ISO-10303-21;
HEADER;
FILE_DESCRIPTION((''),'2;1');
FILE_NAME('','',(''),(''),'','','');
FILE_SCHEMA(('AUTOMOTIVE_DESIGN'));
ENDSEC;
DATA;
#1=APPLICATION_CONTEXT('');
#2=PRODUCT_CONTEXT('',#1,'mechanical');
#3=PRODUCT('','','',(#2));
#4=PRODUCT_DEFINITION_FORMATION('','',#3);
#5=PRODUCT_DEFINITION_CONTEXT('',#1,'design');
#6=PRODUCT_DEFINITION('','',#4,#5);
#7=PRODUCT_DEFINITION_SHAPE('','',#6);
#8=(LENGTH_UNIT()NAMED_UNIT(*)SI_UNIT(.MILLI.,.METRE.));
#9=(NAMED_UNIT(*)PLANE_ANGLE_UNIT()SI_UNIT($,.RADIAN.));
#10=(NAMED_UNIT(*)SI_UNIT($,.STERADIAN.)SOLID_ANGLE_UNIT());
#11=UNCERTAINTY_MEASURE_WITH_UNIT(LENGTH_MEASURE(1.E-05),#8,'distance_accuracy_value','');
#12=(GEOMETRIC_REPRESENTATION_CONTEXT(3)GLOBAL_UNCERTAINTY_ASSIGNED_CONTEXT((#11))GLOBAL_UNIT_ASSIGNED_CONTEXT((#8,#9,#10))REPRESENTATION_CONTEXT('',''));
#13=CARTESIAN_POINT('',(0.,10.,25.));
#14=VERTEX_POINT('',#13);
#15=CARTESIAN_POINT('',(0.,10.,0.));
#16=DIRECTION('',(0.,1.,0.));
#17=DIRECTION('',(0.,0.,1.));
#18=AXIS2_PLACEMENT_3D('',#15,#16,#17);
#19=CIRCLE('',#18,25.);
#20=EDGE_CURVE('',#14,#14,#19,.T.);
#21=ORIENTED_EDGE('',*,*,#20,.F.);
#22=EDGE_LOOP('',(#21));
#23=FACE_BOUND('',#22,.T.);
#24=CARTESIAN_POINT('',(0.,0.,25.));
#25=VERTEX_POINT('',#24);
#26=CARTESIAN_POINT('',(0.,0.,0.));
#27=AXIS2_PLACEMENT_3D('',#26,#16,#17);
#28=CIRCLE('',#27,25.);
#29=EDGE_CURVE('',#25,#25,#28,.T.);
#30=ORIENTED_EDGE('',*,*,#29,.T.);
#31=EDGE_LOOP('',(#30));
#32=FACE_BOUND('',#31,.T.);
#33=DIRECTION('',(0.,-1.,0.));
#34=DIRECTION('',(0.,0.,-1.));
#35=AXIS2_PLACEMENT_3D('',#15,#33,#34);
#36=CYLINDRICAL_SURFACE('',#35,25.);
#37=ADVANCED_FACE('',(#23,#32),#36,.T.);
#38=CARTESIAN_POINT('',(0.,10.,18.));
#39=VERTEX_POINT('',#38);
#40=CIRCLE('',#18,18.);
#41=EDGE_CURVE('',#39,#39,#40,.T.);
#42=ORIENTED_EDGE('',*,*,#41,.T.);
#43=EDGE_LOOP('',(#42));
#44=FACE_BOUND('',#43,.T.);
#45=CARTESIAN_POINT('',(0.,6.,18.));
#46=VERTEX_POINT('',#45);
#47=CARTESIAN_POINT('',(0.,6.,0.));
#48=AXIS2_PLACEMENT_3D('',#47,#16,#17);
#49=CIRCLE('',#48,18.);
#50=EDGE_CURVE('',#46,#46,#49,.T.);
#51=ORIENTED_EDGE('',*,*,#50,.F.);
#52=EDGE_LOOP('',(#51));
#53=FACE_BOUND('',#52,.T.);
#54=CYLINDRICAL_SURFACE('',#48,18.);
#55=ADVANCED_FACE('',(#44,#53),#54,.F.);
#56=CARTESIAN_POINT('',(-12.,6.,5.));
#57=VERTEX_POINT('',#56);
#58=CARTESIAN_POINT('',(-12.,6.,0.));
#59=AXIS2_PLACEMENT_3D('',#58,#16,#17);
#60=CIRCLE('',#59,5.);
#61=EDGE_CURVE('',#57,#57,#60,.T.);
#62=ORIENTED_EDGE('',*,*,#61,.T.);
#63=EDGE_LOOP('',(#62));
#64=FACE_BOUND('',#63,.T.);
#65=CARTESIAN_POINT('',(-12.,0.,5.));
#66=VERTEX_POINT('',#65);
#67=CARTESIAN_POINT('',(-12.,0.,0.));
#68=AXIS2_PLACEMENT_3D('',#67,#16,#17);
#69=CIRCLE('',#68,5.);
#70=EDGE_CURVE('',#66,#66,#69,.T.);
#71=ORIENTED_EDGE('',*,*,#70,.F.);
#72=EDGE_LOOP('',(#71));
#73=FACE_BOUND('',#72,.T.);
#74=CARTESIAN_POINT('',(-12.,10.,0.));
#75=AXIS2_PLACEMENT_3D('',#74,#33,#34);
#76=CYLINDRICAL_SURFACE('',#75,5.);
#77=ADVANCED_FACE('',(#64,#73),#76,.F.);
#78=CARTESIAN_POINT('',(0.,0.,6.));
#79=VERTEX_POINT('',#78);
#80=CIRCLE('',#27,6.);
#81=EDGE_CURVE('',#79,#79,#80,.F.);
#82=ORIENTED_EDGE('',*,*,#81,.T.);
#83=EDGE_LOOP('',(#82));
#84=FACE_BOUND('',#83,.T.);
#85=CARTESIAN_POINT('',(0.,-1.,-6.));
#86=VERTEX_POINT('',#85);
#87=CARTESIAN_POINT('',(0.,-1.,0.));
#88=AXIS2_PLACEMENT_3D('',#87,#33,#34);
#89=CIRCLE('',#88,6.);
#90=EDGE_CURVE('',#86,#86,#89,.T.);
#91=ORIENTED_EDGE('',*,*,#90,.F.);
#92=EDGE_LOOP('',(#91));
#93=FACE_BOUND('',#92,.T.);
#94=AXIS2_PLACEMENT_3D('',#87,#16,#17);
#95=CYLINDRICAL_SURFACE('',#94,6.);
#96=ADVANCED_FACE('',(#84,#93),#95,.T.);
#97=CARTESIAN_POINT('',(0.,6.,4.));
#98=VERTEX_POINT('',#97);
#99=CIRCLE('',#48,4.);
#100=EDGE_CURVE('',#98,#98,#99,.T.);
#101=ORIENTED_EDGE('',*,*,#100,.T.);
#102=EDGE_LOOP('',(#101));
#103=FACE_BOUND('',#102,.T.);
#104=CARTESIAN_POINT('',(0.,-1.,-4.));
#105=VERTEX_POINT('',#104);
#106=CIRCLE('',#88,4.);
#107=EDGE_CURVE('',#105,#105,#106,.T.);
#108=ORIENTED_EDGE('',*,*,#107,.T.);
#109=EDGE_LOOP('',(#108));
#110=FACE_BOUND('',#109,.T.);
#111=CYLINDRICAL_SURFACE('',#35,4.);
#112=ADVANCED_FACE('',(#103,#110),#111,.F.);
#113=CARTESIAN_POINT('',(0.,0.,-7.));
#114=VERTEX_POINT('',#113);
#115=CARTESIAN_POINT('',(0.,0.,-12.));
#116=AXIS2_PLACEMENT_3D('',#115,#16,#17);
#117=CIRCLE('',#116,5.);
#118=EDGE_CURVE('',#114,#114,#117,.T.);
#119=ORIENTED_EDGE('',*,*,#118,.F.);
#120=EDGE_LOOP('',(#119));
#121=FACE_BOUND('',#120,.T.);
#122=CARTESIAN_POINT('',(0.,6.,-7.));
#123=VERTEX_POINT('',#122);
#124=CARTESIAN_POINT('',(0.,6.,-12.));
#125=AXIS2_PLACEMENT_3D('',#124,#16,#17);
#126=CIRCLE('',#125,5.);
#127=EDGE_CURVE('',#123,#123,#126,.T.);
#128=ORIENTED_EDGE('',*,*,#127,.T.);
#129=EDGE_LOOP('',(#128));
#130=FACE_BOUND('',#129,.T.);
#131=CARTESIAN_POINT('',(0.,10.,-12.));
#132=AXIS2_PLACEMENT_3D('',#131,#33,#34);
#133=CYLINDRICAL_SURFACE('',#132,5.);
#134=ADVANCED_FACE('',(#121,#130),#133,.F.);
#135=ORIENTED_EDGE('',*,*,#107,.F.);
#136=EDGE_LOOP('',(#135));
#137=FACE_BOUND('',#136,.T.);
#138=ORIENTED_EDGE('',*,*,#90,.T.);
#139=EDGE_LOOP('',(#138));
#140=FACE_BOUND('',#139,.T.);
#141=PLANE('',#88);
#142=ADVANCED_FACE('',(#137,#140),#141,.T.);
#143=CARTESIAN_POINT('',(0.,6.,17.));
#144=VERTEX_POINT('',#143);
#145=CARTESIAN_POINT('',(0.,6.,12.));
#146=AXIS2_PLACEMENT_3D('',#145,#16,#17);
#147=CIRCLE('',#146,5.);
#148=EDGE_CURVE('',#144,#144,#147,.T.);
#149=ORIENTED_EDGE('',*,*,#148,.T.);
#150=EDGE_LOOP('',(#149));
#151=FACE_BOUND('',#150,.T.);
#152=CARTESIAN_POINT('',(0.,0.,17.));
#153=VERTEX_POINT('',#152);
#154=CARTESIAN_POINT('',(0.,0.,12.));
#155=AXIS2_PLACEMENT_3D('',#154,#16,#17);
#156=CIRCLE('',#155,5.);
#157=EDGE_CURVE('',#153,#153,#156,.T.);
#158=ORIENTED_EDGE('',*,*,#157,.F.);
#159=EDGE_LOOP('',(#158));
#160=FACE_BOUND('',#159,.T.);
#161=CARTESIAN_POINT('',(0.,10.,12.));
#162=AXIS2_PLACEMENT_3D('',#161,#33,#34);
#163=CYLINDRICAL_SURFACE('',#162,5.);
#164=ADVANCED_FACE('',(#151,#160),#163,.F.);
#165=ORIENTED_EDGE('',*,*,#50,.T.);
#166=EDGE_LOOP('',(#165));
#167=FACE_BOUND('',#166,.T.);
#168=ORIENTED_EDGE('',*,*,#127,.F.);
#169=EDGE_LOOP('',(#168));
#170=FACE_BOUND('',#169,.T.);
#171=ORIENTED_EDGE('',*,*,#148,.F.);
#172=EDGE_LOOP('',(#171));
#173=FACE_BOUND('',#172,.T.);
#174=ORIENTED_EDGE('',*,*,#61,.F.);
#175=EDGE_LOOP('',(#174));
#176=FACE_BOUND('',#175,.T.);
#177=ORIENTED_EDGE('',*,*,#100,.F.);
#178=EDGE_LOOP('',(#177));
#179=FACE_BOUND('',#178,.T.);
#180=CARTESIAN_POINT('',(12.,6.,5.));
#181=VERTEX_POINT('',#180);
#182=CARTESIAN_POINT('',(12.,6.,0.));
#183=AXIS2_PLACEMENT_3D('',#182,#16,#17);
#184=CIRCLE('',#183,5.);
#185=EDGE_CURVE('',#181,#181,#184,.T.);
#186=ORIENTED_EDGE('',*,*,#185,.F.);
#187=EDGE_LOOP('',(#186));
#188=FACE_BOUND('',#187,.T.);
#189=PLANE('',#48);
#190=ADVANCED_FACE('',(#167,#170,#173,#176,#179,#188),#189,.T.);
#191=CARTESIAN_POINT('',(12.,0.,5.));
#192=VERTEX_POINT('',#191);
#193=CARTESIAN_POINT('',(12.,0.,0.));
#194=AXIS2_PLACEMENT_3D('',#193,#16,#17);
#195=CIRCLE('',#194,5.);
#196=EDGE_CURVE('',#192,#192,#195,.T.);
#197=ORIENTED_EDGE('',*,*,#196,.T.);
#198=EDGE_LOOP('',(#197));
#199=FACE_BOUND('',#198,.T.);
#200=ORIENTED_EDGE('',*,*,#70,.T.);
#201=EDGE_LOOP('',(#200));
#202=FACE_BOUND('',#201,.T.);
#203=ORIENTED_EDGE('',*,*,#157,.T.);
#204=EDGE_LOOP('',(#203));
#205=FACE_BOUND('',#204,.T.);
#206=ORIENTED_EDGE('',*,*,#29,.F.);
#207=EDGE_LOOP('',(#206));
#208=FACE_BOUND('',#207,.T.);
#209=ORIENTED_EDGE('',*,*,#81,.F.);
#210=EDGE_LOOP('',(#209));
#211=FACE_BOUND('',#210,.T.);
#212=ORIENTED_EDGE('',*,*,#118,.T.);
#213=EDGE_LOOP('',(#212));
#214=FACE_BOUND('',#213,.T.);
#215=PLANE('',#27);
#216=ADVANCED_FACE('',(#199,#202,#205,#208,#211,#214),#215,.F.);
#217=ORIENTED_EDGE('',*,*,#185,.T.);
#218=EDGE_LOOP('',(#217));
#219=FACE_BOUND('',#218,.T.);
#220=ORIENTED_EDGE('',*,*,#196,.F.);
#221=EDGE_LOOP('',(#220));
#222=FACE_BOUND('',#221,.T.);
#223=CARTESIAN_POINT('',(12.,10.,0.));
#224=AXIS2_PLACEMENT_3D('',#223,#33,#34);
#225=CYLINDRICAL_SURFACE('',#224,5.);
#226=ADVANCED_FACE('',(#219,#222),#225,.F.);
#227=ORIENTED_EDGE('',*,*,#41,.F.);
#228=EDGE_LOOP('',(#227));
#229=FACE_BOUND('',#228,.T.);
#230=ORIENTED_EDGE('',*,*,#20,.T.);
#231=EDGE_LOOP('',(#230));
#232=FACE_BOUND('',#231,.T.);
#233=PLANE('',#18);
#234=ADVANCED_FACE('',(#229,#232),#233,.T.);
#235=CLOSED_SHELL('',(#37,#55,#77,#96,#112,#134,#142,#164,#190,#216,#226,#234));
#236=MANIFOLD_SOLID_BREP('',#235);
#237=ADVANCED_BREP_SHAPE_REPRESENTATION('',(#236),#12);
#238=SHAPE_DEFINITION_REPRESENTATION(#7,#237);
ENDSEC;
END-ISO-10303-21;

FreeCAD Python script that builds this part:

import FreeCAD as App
import Part
import Sketcher
from FreeCAD import Vector
Q = App.Units.Quantity

doc = App.newDocument("Part")
body = doc.addObject("PartDesign::Body", "Body")

sketch1 = body.newObject("Sketcher::SketchObject", "Sketch")
sketch1.AttachmentSupport = (doc.getObject("XZ_Plane"), [""])
sketch1.MapMode = "FlatFace"
sketch1.addGeometry(Part.Circle(Vector(0, 0, 0), Vector(0, 0, 1), 25), False)
sketch1.addGeometry(Part.Circle(Vector(0, 12, 0), Vector(0, 0, 1), 5), False)
sketch1.addGeometry(Part.Circle(Vector(-12, 0, 0), Vector(0, 0, 1), 5), False)
sketch1.addGeometry(Part.Circle(Vector(0, 0, 0), Vector(0, 0, 1), 4), False)
sketch1.addGeometry(Part.Circle(Vector(12, 0, 0), Vector(0, 0, 1), 5), False)
sketch1.addGeometry(Part.Circle(Vector(0, -12, 0), Vector(0, 0, 1), 5), False)
sketch1.addConstraint(Sketcher.Constraint("Coincident", 0, 3, -1, 1))
sketch1.addConstraint(Sketcher.Constraint("Coincident", 3, 3, -1, 1))
sketch1.addConstraint(Sketcher.Constraint("Equal", 1, 2))
sketch1.addConstraint(Sketcher.Constraint("Equal", 2, 4))
sketch1.addConstraint(Sketcher.Constraint("Equal", 4, 5))
sketch1.addConstraint(Sketcher.Constraint("Symmetric", 2, 3, 4, 3, -1, 1))
sketch1.addConstraint(Sketcher.Constraint("Symmetric", 1, 3, 5, 3, -1, 1))
sketch1.addConstraint(Sketcher.Constraint("PointOnObject", 1, 3, -2))
sketch1.addConstraint(Sketcher.Constraint("PointOnObject", 2, 3, -1))
sketch1.addConstraint(Sketcher.Constraint("Diameter", 0, Q("50 mm")))
sketch1.addConstraint(Sketcher.Constraint("Diameter", 1, Q("10 mm")))
sketch1.addConstraint(Sketcher.Constraint("Diameter", 3, Q("8 mm")))
sketch1.addConstraint(Sketcher.Constraint("DistanceY", -1, 1, 1, 3, Q("12 mm")))
sketch1.addConstraint(Sketcher.Constraint("DistanceX", 2, 3, -1, 1, Q("12 mm")))
pad1 = body.newObject("PartDesign::Pad", "Pad")
pad1.Profile = sketch1
pad1.Length = 10
pad1.Reversed = True

sketch2 = body.newObject("Sketcher::SketchObject", "Sketch001")
sketch2.AttachmentSupport = (doc.getObject("XZ_Plane"), [""])
sketch2.MapMode = "FlatFace"
sketch2.AttachmentOffset = App.Placement(Vector(0, 0, -10), App.Rotation())
sketch2.addGeometry(Part.Circle(Vector(0, 0, 0), Vector(0, 0, 1), 18), False)
sketch2.addConstraint(Sketcher.Constraint("Coincident", 0, 3, -1, 1))
sketch2.addConstraint(Sketcher.Constraint("Diameter", 0, Q("36 mm")))
pocket1 = body.newObject("PartDesign::Pocket", "Pocket")
pocket1.Profile = sketch2
pocket1.Length = 4
pocket1.Reversed = True

sketch3 = body.newObject("Sketcher::SketchObject", "Sketch002")
sketch3.AttachmentSupport = (doc.getObject("XZ_Plane"), [""])
sketch3.MapMode = "FlatFace"
sketch3.addGeometry(Part.Circle(Vector(0, 0, 0), Vector(0, 0, 1), 6), False)
sketch3.addConstraint(Sketcher.Constraint("Coincident", 0, 3, -1, 1))
sketch3.addConstraint(Sketcher.Constraint("Diameter", 0, Q("12 mm")))
pad2 = body.newObject("PartDesign::Pad", "Pad001")
pad2.Profile = sketch3
pad2.Length = 1

sketch4 = body.newObject("Sketcher::SketchObject", "Sketch003")
sketch4.AttachmentSupport = (doc.getObject("XZ_Plane"), [""])
sketch4.MapMode = "FlatFace"
sketch4.addGeometry(Part.Circle(Vector(0, 0, 0), Vector(0, 0, 1), 4), False)
sketch4.addConstraint(Sketcher.Constraint("Coincident", 0, 3, -1, 1))
sketch4.addConstraint(Sketcher.Constraint("Diameter", 0, Q("8 mm")))
pocket2 = body.newObject("PartDesign::Pocket", "Pocket001")
pocket2.Profile = sketch4
pocket2.Length = 13
pocket2.Reversed = True

doc.recompute()
